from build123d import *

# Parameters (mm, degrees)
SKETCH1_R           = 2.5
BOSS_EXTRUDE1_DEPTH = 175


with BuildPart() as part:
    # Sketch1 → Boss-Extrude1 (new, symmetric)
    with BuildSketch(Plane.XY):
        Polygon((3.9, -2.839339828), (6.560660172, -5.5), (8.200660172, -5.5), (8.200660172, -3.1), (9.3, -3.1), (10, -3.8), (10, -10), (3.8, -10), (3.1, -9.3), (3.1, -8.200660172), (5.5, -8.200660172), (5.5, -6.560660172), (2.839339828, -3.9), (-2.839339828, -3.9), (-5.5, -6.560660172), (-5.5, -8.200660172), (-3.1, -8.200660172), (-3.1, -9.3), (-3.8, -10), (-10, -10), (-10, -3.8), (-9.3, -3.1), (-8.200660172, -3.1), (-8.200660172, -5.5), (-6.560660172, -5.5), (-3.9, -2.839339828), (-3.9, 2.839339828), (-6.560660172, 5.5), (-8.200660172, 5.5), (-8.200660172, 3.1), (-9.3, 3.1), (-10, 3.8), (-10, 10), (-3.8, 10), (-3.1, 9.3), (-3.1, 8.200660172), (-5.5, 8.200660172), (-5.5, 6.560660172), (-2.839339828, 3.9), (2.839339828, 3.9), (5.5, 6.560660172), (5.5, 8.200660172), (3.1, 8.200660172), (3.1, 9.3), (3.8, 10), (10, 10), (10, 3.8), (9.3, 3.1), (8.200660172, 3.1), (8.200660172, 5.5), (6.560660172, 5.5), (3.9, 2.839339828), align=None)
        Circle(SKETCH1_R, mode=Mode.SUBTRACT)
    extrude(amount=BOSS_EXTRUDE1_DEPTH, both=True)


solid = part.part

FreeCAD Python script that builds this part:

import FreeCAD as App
import Part
import Sketcher


def add_polygon(sketch, points):
    """Adds a closed chain of lines whose ends are joined by coincident constraints."""
    first, n = sketch.GeometryCount, len(points)
    for a, b in zip(points, points[1:] + points[:1]):
        sketch.addGeometry(Part.LineSegment(App.Vector(*a, 0), App.Vector(*b, 0)), False)
    for i in range(n):
        sketch.addConstraint(Sketcher.Constraint("Coincident", first + i, 2, first + (i + 1) % n, 1))

doc = App.newDocument("Part")
params = doc.addObject("Spreadsheet::Sheet", "Params")
for row, (alias, value) in enumerate([
    ("sketch1_diameter", "5 mm"),
    ("sketch1_width", "6.2 mm"),
    ("sketch1_width2", "2.4 mm"),
    ("sketch1_width3", "1.64 mm"),
    ("pad1_length", "350 mm"),
], start=1):
    params.set(f"A{row}", alias)
    params.set(f"B{row}", "=" + value)
    params.setAlias(f"B{row}", alias)

body = doc.addObject("PartDesign::Body", "Body")

# Sketch on XY plane
sketch1 = body.newObject("Sketcher::SketchObject", "Sketch")
sketch1.AttachmentSupport = (doc.getObject("XY_Plane"), [""])
sketch1.MapMode = "FlatFace"
add_polygon(sketch1, [(6.6, -5.5), (3.9, -2.8), (3.9, 2.8), (6.6, 5.5), (8.2, 5.5), (8.2, 3.1), (9.3, 3.1), (10, 3.8), (10, 10), (3.8, 10), (3.1, 9.3), (3.1, 8.2), (5.5, 8.2), (5.5, 6.6), (2.8, 3.9), (-2.8, 3.9), (-5.5, 6.6), (-5.5, 8.2), (-3.1, 8.2), (-3.1, 9.3), (-3.8, 10), (-10, 10), (-10, 3.8), (-9.3, 3.1), (-8.2, 3.1), (-8.2, 5.5), (-6.6, 5.5), (-3.9, 2.8), (-3.9, -2.8), (-6.6, -5.5), (-8.2, -5.5), (-8.2, -3.1), (-9.3, -3.1), (-10, -3.8), (-10, -10), (-3.8, -10), (-3.1, -9.3), (-3.1, -8.2), (-5.5, -8.2), (-5.5, -6.6), (-2.8, -3.9), (2.8, -3.9), (5.5, -6.6), (5.5, -8.2), (3.1, -8.2), (3.1, -9.3), (3.8, -10), (10, -10), (10, -3.8), (9.3, -3.1), (8.2, -3.1), (8.2, -5.5)])  # lines 0-51
sketch1.addGeometry(Part.Circle(App.Vector(0, 0, 0), App.Vector(0, 0, 1), 2.5), False)  # 52
sketch1.addConstraint([
    Sketcher.Constraint("Vertical", 1),
    Sketcher.Constraint("Horizontal", 3),
    Sketcher.Constraint("Vertical", 4),
    Sketcher.Constraint("Horizontal", 5),
    Sketcher.Constraint("Vertical", 7),
    Sketcher.Constraint("Horizontal", 8),
    Sketcher.Constraint("Vertical", 10),
    Sketcher.Constraint("Horizontal", 11),
    Sketcher.Constraint("Vertical", 12),
    Sketcher.Constraint("Horizontal", 14),
    Sketcher.Constraint("Vertical", 16),
    Sketcher.Constraint("Horizontal", 17),
    Sketcher.Constraint("Vertical", 18),
    Sketcher.Constraint("Horizontal", 20),
    Sketcher.Constraint("Vertical", 21),
    Sketcher.Constraint("Horizontal", 23),
    Sketcher.Constraint("Vertical", 24),
    Sketcher.Constraint("Horizontal", 25),
    Sketcher.Constraint("Vertical", 27),
    Sketcher.Constraint("Horizontal", 29),
    Sketcher.Constraint("Vertical", 30),
    Sketcher.Constraint("Horizontal", 31),
    Sketcher.Constraint("Vertical", 33),
    Sketcher.Constraint("Horizontal", 34),
    Sketcher.Constraint("Vertical", 36),
    Sketcher.Constraint("Horizontal", 37),
    Sketcher.Constraint("Vertical", 38),
    Sketcher.Constraint("Horizontal", 40),
    Sketcher.Constraint("Vertical", 42),
    Sketcher.Constraint("Horizontal", 43),
    Sketcher.Constraint("Vertical", 44),
    Sketcher.Constraint("Horizontal", 46),
    Sketcher.Constraint("Vertical", 47),
    Sketcher.Constraint("Horizontal", 49),
    Sketcher.Constraint("Vertical", 50),
    Sketcher.Constraint("Horizontal", 51),
    Sketcher.Constraint("Coincident", 52, 3, -1, 1),
    Sketcher.Constraint("Symmetric", 0, 2, 26, 2, -1, 1),
    Sketcher.Constraint("Symmetric", 2, 2, 28, 2, -1, 1),
    Sketcher.Constraint("Symmetric", 4, 2, 30, 2, -1, 1),
    Sketcher.Constraint("Symmetric", 6, 2, 32, 2, -1, 1),
    Sketcher.Constraint("Symmetric", 8, 2, 34, 2, -1, 1),
    Sketcher.Constraint("Symmetric", 9, 2, 35, 2, -1, 1),
    Sketcher.Constraint("Symmetric", 11, 2, 37, 2, -1, 1),
    Sketcher.Constraint("Symmetric", 13, 2, 39, 2, -1, 1),
    Sketcher.Constraint("Symmetric", 15, 2, 41, 2, -1, 1),
    Sketcher.Constraint("Symmetric", 17, 2, 43, 2, -1, 1),
    Sketcher.Constraint("Symmetric", 19, 2, 45, 2, -1, 1),
    Sketcher.Constraint("Symmetric", 21, 2, 47, 2, -1, 1),
    Sketcher.Constraint("Symmetric", 22, 2, 48, 2, -1, 1),
    Sketcher.Constraint("Symmetric", 24, 2, 50, 2, -1, 1),
    Sketcher.Constraint("Symmetric", 12, 2, 15, 2, -2),
    Sketcher.Constraint("Symmetric", 10, 2, 17, 2, -2),
    Sketcher.Constraint("Symmetric", 8, 2, 19, 2, -2),
    Sketcher.Constraint("Symmetric", 6, 2, 21, 2, -2),
    Sketcher.Constraint("Symmetric", 5, 2, 22, 2, -2),
    Sketcher.Constraint("Symmetric", 3, 2, 24, 2, -2),
    Sketcher.Constraint("Perpendicular", 0, 2),
    Sketcher.Constraint("Parallel", 2, 6),
    Sketcher.Constraint("Parallel", 6, 9),
    Sketcher.Constraint("Parallel", 9, 13),
    Sketcher.Constraint("Perpendicular", 13, 15),
    Sketcher.Constraint("Parallel", 15, 19),
    Sketcher.Constraint("Parallel", 19, 22),
    Sketcher.Constraint("Parallel", 22, 26),
    Sketcher.Constraint("Perpendicular", 26, 28),
    Sketcher.Constraint("Parallel", 28, 32),
    Sketcher.Constraint("Parallel", 35, 39),
    Sketcher.Constraint("Perpendicular", 39, 41),
    Sketcher.Constraint("Parallel", 41, 45),
    Sketcher.Constraint("Horizontal", 1, 2, 26, 2),
    Sketcher.Constraint("Equal", 40, 1),
    Sketcher.Constraint("Equal", 43, 4),
    Sketcher.Constraint("Equal", 46, 7),
    Sketcher.Constraint("Equal", 49, 10),
    Sketcher.Constraint("Equal", 51, 12),
    Sketcher.Constraint("Equal", 6, 9),
    Sketcher.Constraint("Equal", 2, 13),
    Sketcher.Constraint("Diameter", 52, 5.0),
    Sketcher.Constraint("DistanceX", 8, 2, 8, 1, 6.2),
    Sketcher.Constraint("DistanceX", 11, 1, 11, 2, 2.4),
    Sketcher.Constraint("DistanceX", -1, 1, 6, 2, 10.0),
    Sketcher.Constraint("DistanceX", 3, 1, 3, 2, 1.64),
    Sketcher.Constraint("DistanceX", -1, 1, 0, 2, 3.9),
    Sketcher.Constraint("DistanceY", -1, 1, 2, 2, 5.5),
    Sketcher.Constraint("DistanceX", 5, 1, 5, 2, 1.09934),
])
sketch1.setExpression("Constraints[130]", "Params.sketch1_diameter")
sketch1.setExpression("Constraints[131]", "Params.sketch1_width")
sketch1.setExpression("Constraints[132]", "Params.sketch1_width2")
sketch1.setExpression("Constraints[134]", "Params.sketch1_width3")
pad1 = body.newObject("PartDesign::Pad", "Pad")
pad1.Profile = sketch1
pad1.setExpression("Length", "Params.pad1_length")
pad1.Midplane = True

doc.recompute()
